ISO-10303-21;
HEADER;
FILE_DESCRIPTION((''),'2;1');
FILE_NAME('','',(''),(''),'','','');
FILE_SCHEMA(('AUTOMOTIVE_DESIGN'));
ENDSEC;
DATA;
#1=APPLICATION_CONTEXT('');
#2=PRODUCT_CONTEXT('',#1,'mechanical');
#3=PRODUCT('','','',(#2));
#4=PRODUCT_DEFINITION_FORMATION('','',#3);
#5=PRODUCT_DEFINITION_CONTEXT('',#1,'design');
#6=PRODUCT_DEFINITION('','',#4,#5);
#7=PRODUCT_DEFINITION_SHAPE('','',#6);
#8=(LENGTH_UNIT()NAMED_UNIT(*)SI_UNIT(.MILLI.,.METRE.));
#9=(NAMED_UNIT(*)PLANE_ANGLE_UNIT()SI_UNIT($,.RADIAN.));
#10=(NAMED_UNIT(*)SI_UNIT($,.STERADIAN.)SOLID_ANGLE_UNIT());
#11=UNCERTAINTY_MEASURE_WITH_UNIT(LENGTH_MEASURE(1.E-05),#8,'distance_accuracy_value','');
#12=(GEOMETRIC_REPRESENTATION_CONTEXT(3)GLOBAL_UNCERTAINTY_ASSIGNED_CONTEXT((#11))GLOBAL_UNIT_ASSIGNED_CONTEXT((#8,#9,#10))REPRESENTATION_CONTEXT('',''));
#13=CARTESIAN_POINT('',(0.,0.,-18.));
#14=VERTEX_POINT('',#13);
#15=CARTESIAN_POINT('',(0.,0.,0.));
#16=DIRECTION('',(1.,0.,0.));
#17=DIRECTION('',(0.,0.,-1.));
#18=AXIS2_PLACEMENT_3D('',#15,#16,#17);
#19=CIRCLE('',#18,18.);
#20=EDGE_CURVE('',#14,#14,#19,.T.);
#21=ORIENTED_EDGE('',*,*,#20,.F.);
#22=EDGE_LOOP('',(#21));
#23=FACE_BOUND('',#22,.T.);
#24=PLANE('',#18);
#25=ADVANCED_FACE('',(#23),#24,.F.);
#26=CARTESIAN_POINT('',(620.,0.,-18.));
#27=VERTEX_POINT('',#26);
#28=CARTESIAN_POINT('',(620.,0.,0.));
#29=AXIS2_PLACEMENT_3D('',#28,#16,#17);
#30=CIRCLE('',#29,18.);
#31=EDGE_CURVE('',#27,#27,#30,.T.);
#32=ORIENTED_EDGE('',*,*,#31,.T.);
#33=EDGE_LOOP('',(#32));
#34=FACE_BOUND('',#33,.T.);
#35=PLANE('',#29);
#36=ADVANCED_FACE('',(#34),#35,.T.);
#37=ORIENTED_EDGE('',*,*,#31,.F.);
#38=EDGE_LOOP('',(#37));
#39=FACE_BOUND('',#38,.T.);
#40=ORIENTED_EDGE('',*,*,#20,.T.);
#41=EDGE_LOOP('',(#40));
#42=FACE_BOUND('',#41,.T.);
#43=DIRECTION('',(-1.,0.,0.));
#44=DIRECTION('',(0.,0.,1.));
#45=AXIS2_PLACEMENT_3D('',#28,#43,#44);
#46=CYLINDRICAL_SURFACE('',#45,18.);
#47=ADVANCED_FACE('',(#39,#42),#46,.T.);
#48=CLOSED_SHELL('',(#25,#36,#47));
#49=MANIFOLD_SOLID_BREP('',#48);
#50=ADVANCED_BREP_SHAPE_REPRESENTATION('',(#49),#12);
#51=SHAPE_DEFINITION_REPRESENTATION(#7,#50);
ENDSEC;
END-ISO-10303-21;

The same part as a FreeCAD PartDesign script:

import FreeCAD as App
import Part
import Sketcher

V = App.Vector
Q = App.Units.Quantity

doc = App.newDocument("Part")
body = doc.addObject("PartDesign::Body", "Body")

# Sketch on YZ plane
sketch1 = body.newObject("Sketcher::SketchObject", "Sketch")
sketch1.AttachmentSupport = (doc.getObject("YZ_Plane"), [""])
sketch1.MapMode = "FlatFace"
sketch1.addGeometry(Part.Circle(V(0, 0, 0), V(0, 0, 1), 18), False)
sketch1.addConstraint(Sketcher.Constraint("Coincident", 0, 3, -1, 1))
sketch1.addConstraint(Sketcher.Constraint("Diameter", 0, Q("36 mm")))
pad1 = body.newObject("PartDesign::Pad", "Pad")
pad1.Profile = sketch1
pad1.Length = 620

doc.recompute()
